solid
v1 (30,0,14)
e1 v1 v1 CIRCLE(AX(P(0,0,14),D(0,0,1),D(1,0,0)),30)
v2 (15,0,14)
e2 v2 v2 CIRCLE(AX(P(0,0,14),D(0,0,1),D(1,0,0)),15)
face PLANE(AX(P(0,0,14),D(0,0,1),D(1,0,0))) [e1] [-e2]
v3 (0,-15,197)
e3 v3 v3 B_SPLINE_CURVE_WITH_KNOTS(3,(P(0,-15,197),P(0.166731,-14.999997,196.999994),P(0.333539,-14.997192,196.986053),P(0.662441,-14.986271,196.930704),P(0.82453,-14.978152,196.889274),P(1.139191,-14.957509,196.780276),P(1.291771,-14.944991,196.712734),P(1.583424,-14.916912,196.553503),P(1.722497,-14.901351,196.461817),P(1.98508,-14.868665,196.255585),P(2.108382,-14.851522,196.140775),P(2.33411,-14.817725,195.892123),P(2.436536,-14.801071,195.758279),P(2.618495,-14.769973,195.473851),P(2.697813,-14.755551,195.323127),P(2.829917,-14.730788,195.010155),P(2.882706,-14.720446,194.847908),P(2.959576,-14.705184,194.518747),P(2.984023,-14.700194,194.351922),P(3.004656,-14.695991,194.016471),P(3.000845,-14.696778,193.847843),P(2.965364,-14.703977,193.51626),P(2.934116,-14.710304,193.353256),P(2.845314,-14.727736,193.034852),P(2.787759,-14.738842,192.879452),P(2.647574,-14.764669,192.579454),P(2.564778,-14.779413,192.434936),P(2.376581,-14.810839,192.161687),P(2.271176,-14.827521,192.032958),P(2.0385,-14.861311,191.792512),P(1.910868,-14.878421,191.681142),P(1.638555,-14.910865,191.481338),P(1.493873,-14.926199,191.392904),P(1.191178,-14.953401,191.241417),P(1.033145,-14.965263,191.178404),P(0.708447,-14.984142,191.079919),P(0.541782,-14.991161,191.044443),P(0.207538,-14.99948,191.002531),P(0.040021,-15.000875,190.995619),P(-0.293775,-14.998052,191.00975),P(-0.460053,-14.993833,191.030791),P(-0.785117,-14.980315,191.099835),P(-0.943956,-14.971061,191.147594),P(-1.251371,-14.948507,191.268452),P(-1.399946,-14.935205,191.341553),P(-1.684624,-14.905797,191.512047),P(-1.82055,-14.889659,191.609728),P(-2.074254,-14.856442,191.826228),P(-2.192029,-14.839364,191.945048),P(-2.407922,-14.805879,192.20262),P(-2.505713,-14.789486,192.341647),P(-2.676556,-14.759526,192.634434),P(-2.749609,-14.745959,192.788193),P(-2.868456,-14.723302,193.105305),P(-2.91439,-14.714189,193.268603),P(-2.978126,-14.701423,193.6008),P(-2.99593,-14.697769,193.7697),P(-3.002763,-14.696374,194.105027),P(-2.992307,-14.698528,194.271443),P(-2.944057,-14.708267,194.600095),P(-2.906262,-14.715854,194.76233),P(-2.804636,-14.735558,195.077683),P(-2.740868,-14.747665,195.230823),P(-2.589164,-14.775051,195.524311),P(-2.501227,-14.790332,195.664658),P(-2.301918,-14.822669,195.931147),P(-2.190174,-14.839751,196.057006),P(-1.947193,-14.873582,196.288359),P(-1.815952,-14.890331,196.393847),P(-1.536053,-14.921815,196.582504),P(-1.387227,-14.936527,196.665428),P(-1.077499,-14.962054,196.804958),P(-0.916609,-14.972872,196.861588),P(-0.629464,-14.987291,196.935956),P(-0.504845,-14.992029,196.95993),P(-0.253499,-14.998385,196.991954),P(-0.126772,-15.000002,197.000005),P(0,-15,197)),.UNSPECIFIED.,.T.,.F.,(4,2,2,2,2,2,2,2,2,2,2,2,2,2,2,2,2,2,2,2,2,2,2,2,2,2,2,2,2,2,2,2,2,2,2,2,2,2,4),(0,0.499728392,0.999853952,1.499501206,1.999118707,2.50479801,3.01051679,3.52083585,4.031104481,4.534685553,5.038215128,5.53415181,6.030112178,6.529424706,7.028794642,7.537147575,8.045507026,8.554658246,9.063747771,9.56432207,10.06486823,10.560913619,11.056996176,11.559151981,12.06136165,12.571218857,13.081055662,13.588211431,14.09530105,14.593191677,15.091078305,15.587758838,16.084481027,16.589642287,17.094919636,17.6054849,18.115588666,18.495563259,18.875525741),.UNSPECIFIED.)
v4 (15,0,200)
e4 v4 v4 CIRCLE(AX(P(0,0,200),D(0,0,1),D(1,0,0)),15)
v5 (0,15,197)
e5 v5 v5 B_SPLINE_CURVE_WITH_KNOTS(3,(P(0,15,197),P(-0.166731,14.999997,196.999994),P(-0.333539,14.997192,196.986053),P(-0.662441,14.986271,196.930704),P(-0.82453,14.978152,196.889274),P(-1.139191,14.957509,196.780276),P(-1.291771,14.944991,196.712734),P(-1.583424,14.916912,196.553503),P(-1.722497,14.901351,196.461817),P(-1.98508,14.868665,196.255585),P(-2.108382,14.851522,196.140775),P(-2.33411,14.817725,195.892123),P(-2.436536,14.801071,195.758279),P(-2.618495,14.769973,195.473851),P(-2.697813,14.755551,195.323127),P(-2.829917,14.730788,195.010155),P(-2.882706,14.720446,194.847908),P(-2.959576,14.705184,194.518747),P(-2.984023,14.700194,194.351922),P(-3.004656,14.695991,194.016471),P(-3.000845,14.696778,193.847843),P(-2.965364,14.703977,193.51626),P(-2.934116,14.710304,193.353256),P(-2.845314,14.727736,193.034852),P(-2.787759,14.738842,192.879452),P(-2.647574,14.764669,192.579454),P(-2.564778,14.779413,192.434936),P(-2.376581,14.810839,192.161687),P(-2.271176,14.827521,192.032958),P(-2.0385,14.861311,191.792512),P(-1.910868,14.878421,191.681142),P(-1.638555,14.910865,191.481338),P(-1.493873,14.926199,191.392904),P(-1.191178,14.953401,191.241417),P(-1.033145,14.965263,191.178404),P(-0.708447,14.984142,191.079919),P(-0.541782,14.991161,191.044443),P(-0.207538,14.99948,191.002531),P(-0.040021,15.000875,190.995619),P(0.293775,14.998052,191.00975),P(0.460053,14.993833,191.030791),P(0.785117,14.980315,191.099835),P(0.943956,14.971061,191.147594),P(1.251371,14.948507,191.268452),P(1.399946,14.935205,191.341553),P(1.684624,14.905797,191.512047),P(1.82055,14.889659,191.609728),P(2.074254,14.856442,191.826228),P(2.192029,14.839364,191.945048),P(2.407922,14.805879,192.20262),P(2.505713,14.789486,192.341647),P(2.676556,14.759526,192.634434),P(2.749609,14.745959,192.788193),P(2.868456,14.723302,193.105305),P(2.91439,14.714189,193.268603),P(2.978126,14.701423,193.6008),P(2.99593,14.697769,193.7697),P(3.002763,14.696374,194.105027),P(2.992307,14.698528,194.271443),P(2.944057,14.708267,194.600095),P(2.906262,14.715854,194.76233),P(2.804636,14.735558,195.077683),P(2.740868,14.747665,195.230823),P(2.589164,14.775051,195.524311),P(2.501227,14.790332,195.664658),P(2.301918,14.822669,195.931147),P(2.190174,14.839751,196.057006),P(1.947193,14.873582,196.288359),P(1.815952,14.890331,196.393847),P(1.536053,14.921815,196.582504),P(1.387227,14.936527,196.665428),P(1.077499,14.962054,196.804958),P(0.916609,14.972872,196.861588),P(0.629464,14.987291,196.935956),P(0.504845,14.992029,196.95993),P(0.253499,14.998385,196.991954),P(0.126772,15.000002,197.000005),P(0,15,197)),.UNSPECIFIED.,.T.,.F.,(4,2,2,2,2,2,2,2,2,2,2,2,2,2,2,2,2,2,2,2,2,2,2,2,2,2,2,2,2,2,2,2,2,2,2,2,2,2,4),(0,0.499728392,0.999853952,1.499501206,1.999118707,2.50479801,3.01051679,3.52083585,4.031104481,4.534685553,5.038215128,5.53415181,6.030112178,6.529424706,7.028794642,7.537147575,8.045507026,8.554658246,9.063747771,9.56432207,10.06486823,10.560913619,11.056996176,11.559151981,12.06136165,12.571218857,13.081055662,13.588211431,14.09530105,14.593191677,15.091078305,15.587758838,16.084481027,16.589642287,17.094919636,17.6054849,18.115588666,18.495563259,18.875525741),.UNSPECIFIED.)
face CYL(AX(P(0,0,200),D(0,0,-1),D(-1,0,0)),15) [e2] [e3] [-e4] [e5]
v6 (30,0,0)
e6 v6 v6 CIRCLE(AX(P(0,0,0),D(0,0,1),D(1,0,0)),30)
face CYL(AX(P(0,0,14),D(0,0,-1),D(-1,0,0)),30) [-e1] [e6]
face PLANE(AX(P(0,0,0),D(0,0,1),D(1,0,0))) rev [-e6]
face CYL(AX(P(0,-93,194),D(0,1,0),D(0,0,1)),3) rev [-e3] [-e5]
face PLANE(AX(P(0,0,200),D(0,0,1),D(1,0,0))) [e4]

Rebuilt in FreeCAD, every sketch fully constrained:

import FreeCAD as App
import Part
import Sketcher
from FreeCAD import Vector

doc = App.newDocument("Part")
params = doc.addObject("Spreadsheet::Sheet", "Params")
for row, (alias, value) in enumerate([
    ("sketch1_diameter", "60 mm"),
    ("pad1_length", "14 mm"),
    ("sketch2_diameter", "30 mm"),
    ("pad2_length", "186 mm"),
    ("sketch3_diameter", "6 mm"),
    ("pocket1_length", "186 mm"),
], start=1):
    params.set(f"A{row}", alias)
    params.set(f"B{row}", "=" + value)
    params.setAlias(f"B{row}", alias)

body = doc.addObject("PartDesign::Body", "Body")

# Sketch on XY plane
sketch1 = body.newObject("Sketcher::SketchObject", "Sketch")
sketch1.AttachmentSupport = (doc.getObject("XY_Plane"), [""])
sketch1.MapMode = "FlatFace"
sketch1.addGeometry(Part.Circle(Vector(0, 0, 0), Vector(0, 0, 1), 30), False)
sketch1.addConstraint(Sketcher.Constraint("Coincident", 0, 3, -1, 1))
sketch1.addConstraint(Sketcher.Constraint("Diameter", 0, 60.0))
sketch1.setExpression("Constraints[1]", "Params.sketch1_diameter")
pad1 = body.newObject("PartDesign::Pad", "Pad")
pad1.Profile = sketch1
pad1.setExpression("Length", "Params.pad1_length")

# Sketch on XY plane
sketch2 = body.newObject("Sketcher::SketchObject", "Sketch001")
sketch2.AttachmentSupport = (doc.getObject("XY_Plane"), [""])
sketch2.MapMode = "FlatFace"
sketch2.AttachmentOffset = App.Placement(Vector(0, 0, 14), App.Rotation())
sketch2.addGeometry(Part.Circle(Vector(0, 0, 0), Vector(0, 0, 1), 15), False)
sketch2.addConstraint(Sketcher.Constraint("Coincident", 0, 3, -1, 1))
sketch2.addConstraint(Sketcher.Constraint("Diameter", 0, 30.0))
sketch2.setExpression("Constraints[1]", "Params.sketch2_diameter")
pad2 = body.newObject("PartDesign::Pad", "Pad001")
pad2.Profile = sketch2
pad2.setExpression("Length", "Params.pad2_length")

# Sketch on XZ plane
sketch3 = body.newObject("Sketcher::SketchObject", "Sketch002")
sketch3.AttachmentSupport = (doc.getObject("XZ_Plane"), [""])
sketch3.MapMode = "FlatFace"
sketch3.addGeometry(Part.Circle(Vector(0, 194, 0), Vector(0, 0, 1), 3), False)
sketch3.addConstraint(Sketcher.Constraint("PointOnObject", 0, 3, -2))
sketch3.addConstraint(Sketcher.Constraint("Diameter", 0, 6.0))
sketch3.addConstraint(Sketcher.Constraint("DistanceY", -1, 1, 0, 3, 194.0))
sketch3.setExpression("Constraints[1]", "Params.sketch3_diameter")
pocket1 = body.newObject("PartDesign::Pocket", "Pocket")
pocket1.Profile = sketch3
pocket1.setExpression("Length", "Params.pocket1_length")
pocket1.Midplane = True

doc.recompute()
